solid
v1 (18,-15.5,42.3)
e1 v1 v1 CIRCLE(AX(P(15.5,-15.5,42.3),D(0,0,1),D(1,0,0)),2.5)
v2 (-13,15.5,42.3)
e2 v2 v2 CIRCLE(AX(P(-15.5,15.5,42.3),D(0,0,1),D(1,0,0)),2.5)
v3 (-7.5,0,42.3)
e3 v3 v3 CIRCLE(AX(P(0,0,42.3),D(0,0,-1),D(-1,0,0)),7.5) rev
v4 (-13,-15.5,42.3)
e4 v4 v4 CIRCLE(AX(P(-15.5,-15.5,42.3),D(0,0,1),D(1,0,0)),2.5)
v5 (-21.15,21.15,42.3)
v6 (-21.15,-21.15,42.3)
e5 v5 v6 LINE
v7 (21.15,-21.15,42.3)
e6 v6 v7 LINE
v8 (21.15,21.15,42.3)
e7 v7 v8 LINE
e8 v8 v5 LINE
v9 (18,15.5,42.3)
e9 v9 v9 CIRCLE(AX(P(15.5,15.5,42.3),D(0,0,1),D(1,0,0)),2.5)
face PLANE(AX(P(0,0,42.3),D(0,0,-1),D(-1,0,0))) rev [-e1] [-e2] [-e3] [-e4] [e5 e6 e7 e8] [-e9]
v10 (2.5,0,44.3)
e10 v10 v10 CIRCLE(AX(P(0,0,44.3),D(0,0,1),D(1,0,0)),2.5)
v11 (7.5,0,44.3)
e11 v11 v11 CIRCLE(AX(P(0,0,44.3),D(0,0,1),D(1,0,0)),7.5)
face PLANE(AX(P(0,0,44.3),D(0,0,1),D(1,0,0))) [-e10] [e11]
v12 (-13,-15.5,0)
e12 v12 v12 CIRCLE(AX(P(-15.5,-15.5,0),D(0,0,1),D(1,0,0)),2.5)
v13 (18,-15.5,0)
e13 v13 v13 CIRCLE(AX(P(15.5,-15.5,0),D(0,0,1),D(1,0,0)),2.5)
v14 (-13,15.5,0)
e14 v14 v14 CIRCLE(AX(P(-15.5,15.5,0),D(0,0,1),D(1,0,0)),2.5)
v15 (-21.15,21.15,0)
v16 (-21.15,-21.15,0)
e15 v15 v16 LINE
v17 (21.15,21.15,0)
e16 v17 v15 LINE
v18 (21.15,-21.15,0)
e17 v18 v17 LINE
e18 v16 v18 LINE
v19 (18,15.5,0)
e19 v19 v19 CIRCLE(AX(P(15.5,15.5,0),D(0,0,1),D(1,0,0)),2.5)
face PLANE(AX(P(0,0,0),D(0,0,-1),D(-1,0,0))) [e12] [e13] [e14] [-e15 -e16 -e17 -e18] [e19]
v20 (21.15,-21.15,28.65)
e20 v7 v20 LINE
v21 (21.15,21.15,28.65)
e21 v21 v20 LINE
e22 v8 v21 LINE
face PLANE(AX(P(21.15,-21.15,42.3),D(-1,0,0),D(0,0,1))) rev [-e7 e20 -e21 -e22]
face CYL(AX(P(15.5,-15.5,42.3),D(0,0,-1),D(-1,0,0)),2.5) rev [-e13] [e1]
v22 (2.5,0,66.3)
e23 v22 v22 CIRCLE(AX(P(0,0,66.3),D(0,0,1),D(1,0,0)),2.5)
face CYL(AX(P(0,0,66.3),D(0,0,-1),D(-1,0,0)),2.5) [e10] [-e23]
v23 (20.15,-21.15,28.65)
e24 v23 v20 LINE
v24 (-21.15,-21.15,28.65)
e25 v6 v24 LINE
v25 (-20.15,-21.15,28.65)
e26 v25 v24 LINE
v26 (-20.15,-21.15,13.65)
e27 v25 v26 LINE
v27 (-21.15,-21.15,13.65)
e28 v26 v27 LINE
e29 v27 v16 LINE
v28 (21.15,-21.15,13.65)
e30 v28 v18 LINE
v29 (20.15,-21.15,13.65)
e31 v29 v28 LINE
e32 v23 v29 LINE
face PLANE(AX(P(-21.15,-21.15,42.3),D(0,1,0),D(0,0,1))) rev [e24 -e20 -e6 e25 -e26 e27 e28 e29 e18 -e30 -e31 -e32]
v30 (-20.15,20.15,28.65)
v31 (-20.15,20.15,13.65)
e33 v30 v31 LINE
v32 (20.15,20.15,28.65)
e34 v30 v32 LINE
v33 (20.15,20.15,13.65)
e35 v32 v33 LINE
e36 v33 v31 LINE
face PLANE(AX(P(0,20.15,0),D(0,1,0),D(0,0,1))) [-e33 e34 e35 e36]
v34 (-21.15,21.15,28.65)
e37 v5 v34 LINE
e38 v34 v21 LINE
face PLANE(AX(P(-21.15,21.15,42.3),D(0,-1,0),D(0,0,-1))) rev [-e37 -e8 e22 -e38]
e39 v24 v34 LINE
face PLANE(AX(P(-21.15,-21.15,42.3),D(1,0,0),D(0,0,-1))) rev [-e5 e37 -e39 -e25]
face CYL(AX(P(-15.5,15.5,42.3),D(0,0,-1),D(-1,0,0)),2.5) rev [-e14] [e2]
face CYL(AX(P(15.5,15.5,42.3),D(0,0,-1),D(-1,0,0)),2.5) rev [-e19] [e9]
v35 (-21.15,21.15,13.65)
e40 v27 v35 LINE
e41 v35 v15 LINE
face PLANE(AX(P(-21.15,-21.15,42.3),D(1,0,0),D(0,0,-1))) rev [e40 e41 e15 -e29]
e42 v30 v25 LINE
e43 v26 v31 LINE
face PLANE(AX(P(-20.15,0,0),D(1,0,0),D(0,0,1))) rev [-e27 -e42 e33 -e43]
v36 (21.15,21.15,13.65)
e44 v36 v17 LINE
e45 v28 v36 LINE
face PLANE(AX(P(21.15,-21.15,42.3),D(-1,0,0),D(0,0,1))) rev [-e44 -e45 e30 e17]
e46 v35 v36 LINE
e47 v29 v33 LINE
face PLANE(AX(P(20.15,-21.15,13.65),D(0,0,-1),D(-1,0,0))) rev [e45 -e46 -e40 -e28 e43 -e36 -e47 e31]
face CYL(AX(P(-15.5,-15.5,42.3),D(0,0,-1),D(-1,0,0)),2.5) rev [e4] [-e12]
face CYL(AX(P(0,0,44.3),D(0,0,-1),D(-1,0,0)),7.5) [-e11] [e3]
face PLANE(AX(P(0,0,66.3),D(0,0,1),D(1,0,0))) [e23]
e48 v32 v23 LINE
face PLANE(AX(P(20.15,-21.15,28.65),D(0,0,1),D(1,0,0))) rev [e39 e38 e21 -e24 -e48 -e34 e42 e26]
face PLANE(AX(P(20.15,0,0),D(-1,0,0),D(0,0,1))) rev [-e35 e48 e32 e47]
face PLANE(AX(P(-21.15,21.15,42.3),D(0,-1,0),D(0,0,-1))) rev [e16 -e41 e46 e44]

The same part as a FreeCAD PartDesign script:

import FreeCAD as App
import Part
import Sketcher

V = App.Vector


def add_polygon(sketch, points):
    """Adds a closed chain of lines whose ends are joined by coincident constraints."""
    first, n = sketch.GeometryCount, len(points)
    for a, b in zip(points, points[1:] + points[:1]):
        sketch.addGeometry(Part.LineSegment(App.Vector(*a, 0), App.Vector(*b, 0)), False)
    for i in range(n):
        sketch.addConstraint(Sketcher.Constraint("Coincident", first + i, 2, first + (i + 1) % n, 1))

doc = App.newDocument("Part")
params = doc.addObject("Spreadsheet::Sheet", "Params")
for row, (alias, value) in enumerate([
    ("sketch1_diameter", "5 mm"),
    ("sketch1_width", "42.3 mm"),
    ("pad1_length", "42.3 mm"),
    ("sketch2_diameter", "5 mm"),
    ("pad2_length", "24 mm"),
    ("sketch3_diameter", "15 mm"),
    ("pad3_length", "2 mm"),
    ("sketch4_height", "15 mm"),
    ("sketch4_width", "42.3 mm"),
    ("pocket1_length", "1 mm"),
    ("sketch5_height", "15 mm"),
    ("sketch5_width", "41.3 mm"),
    ("pocket2_length", "1 mm"),
], start=1):
    params.set(f"A{row}", alias)
    params.set(f"B{row}", "=" + value)
    params.setAlias(f"B{row}", alias)

body = doc.addObject("PartDesign::Body", "Body")

# Sketch on XY plane
sketch1 = body.newObject("Sketcher::SketchObject", "Sketch")
sketch1.AttachmentSupport = (doc.getObject("XY_Plane"), [""])
sketch1.MapMode = "FlatFace"
add_polygon(sketch1, [(-21.1, 21.1), (-21.1, -21.1), (21.1, -21.1), (21.1, 21.1)])  # lines 0-3
sketch1.addGeometry(Part.Circle(V(-15.5, -15.5, 0), V(0, 0, 1), 2.5), False)  # 4
sketch1.addGeometry(Part.Circle(V(15.5, -15.5, 0), V(0, 0, 1), 2.5), False)  # 5
sketch1.addGeometry(Part.Circle(V(-15.5, 15.5, 0), V(0, 0, 1), 2.5), False)  # 6
sketch1.addGeometry(Part.Circle(V(15.5, 15.5, 0), V(0, 0, 1), 2.5), False)  # 7
sketch1.addConstraint(Sketcher.Constraint("Vertical", 0))
sketch1.addConstraint(Sketcher.Constraint("Horizontal", 1))
sketch1.addConstraint(Sketcher.Constraint("Vertical", 2))
sketch1.addConstraint(Sketcher.Constraint("Horizontal", 3))
sketch1.addConstraint(Sketcher.Constraint("Equal", 4, 5))
sketch1.addConstraint(Sketcher.Constraint("Equal", 5, 6))
sketch1.addConstraint(Sketcher.Constraint("Equal", 6, 7))
sketch1.addConstraint(Sketcher.Constraint("Symmetric", 5, 3, 6, 3, -1, 1))
sketch1.addConstraint(Sketcher.Constraint("Symmetric", 4, 3, 7, 3, -1, 1))
sketch1.addConstraint(Sketcher.Constraint("Symmetric", 0, 2, 2, 2, -1, 1))
sketch1.addConstraint(Sketcher.Constraint("Symmetric", 4, 3, 5, 3, -2))
sketch1.addConstraint(Sketcher.Constraint("Equal", 3, 0))
sketch1.addConstraint(Sketcher.Constraint("Diameter", 4, 5.0))
sketch1.addConstraint(Sketcher.Constraint("DistanceX", 1, 1, 1, 2, 42.3))
sketch1.addConstraint(Sketcher.Constraint("DistanceX", 4, 3, 5, 3, 31.0))
sketch1.addConstraint(Sketcher.Constraint("DistanceY", 4, 3, 6, 3, 31.0))
sketch1.setExpression("Constraints[16]", "Params.sketch1_diameter")
sketch1.setExpression("Constraints[17]", "Params.sketch1_width")
pad1 = body.newObject("PartDesign::Pad", "Pad")
pad1.Profile = sketch1
pad1.setExpression("Length", "Params.pad1_length")

# Sketch on XY plane
sketch2 = body.newObject("Sketcher::SketchObject", "Sketch001")
sketch2.AttachmentSupport = (doc.getObject("XY_Plane"), [""])
sketch2.MapMode = "FlatFace"
sketch2.AttachmentOffset = App.Placement(V(0, 0, 42.3), App.Rotation())
sketch2.addGeometry(Part.Circle(V(0, 0, 0), V(0, 0, 1), 2.5), False)
sketch2.addConstraint(Sketcher.Constraint("Coincident", 0, 3, -1, 1))
sketch2.addConstraint(Sketcher.Constraint("Diameter", 0, 5.0))
sketch2.setExpression("Constraints[1]", "Params.sketch2_diameter")
pad2 = body.newObject("PartDesign::Pad", "Pad001")
pad2.Profile = sketch2
pad2.setExpression("Length", "Params.pad2_length")

# Sketch on XY plane
sketch3 = body.newObject("Sketcher::SketchObject", "Sketch002")
sketch3.AttachmentSupport = (doc.getObject("XY_Plane"), [""])
sketch3.MapMode = "FlatFace"
sketch3.AttachmentOffset = App.Placement(V(0, 0, 42.3), App.Rotation())
sketch3.addGeometry(Part.Circle(V(0, 0, 0), V(0, 0, 1), 8), False)
sketch3.addConstraint(Sketcher.Constraint("Coincident", 0, 3, -1, 1))
sketch3.addConstraint(Sketcher.Constraint("Diameter", 0, 15.0))
sketch3.setExpression("Constraints[1]", "Params.sketch3_diameter")
pad3 = body.newObject("PartDesign::Pad", "Pad002")
pad3.Profile = sketch3
pad3.setExpression("Length", "Params.pad3_length")

# Sketch on YZ plane
sketch4 = body.newObject("Sketcher::SketchObject", "Sketch003")
sketch4.AttachmentSupport = (doc.getObject("YZ_Plane"), [""])
sketch4.MapMode = "FlatFace"
sketch4.AttachmentOffset = App.Placement(V(0, 0, 21.15), App.Rotation())
add_polygon(sketch4, [(21, 29), (-21, 29), (-21, 14), (21, 14)])  # lines 0-3
sketch4.addConstraint(Sketcher.Constraint("Horizontal", 0))
sketch4.addConstraint(Sketcher.Constraint("Vertical", 1))
sketch4.addConstraint(Sketcher.Constraint("Horizontal", 2))
sketch4.addConstraint(Sketcher.Constraint("Vertical", 3))
sketch4.addConstraint(Sketcher.Constraint("DistanceY", 1, 2, 1, 1, 15.0))
sketch4.addConstraint(Sketcher.Constraint("DistanceX", 0, 2, 0, 1, 42.3))
sketch4.addConstraint(Sketcher.Constraint("DistanceX", 0, 2, -1, 1, 21.15))
sketch4.addConstraint(Sketcher.Constraint("DistanceY", -1, 1, 0, 2, 28.65))
sketch4.setExpression("Constraints[8]", "Params.sketch4_height")
sketch4.setExpression("Constraints[9]", "Params.sketch4_width")
pocket1 = body.newObject("PartDesign::Pocket", "Pocket")
pocket1.Profile = sketch4
pocket1.setExpression("Length", "Params.pocket1_length")

# Sketch on XZ plane
sketch5 = body.newObject("Sketcher::SketchObject", "Sketch004")
sketch5.AttachmentSupport = (doc.getObject("XZ_Plane"), [""])
sketch5.MapMode = "FlatFace"
sketch5.AttachmentOffset = App.Placement(V(0, 0, -21.15), App.Rotation())
add_polygon(sketch5, [(-21, 14), (-21, 29), (20, 29), (20, 14)])  # lines 0-3
sketch5.addConstraint(Sketcher.Constraint("Vertical", 0))
sketch5.addConstraint(Sketcher.Constraint("Horizontal", 1))
sketch5.addConstraint(Sketcher.Constraint("Vertical", 2))
sketch5.addConstraint(Sketcher.Constraint("Horizontal", 3))
sketch5.addConstraint(Sketcher.Constraint("DistanceY", 0, 1, 0, 2, 15.0))
sketch5.addConstraint(Sketcher.Constraint("DistanceX", 1, 1, 1, 2, 41.3))
sketch5.addConstraint(Sketcher.Constraint("DistanceX", 0, 2, -1, 1, 21.15))
sketch5.addConstraint(Sketcher.Constraint("DistanceY", -1, 1, 0, 2, 28.65))
sketch5.setExpression("Constraints[8]", "Params.sketch5_height")
sketch5.setExpression("Constraints[9]", "Params.sketch5_width")
pocket2 = body.newObject("PartDesign::Pocket", "Pocket001")
pocket2.Profile = sketch5
pocket2.setExpression("Length", "Params.pocket2_length")
pocket2.Reversed = True
doc.recompute()

mirrored = body.newObject("PartDesign::Mirrored", "Mirrored")
mirrored.Originals = [pocket1]
mirrored.MirrorPlane = (doc.getObject("YZ_Plane"), [""])
body.Tip = mirrored

doc.recompute()
